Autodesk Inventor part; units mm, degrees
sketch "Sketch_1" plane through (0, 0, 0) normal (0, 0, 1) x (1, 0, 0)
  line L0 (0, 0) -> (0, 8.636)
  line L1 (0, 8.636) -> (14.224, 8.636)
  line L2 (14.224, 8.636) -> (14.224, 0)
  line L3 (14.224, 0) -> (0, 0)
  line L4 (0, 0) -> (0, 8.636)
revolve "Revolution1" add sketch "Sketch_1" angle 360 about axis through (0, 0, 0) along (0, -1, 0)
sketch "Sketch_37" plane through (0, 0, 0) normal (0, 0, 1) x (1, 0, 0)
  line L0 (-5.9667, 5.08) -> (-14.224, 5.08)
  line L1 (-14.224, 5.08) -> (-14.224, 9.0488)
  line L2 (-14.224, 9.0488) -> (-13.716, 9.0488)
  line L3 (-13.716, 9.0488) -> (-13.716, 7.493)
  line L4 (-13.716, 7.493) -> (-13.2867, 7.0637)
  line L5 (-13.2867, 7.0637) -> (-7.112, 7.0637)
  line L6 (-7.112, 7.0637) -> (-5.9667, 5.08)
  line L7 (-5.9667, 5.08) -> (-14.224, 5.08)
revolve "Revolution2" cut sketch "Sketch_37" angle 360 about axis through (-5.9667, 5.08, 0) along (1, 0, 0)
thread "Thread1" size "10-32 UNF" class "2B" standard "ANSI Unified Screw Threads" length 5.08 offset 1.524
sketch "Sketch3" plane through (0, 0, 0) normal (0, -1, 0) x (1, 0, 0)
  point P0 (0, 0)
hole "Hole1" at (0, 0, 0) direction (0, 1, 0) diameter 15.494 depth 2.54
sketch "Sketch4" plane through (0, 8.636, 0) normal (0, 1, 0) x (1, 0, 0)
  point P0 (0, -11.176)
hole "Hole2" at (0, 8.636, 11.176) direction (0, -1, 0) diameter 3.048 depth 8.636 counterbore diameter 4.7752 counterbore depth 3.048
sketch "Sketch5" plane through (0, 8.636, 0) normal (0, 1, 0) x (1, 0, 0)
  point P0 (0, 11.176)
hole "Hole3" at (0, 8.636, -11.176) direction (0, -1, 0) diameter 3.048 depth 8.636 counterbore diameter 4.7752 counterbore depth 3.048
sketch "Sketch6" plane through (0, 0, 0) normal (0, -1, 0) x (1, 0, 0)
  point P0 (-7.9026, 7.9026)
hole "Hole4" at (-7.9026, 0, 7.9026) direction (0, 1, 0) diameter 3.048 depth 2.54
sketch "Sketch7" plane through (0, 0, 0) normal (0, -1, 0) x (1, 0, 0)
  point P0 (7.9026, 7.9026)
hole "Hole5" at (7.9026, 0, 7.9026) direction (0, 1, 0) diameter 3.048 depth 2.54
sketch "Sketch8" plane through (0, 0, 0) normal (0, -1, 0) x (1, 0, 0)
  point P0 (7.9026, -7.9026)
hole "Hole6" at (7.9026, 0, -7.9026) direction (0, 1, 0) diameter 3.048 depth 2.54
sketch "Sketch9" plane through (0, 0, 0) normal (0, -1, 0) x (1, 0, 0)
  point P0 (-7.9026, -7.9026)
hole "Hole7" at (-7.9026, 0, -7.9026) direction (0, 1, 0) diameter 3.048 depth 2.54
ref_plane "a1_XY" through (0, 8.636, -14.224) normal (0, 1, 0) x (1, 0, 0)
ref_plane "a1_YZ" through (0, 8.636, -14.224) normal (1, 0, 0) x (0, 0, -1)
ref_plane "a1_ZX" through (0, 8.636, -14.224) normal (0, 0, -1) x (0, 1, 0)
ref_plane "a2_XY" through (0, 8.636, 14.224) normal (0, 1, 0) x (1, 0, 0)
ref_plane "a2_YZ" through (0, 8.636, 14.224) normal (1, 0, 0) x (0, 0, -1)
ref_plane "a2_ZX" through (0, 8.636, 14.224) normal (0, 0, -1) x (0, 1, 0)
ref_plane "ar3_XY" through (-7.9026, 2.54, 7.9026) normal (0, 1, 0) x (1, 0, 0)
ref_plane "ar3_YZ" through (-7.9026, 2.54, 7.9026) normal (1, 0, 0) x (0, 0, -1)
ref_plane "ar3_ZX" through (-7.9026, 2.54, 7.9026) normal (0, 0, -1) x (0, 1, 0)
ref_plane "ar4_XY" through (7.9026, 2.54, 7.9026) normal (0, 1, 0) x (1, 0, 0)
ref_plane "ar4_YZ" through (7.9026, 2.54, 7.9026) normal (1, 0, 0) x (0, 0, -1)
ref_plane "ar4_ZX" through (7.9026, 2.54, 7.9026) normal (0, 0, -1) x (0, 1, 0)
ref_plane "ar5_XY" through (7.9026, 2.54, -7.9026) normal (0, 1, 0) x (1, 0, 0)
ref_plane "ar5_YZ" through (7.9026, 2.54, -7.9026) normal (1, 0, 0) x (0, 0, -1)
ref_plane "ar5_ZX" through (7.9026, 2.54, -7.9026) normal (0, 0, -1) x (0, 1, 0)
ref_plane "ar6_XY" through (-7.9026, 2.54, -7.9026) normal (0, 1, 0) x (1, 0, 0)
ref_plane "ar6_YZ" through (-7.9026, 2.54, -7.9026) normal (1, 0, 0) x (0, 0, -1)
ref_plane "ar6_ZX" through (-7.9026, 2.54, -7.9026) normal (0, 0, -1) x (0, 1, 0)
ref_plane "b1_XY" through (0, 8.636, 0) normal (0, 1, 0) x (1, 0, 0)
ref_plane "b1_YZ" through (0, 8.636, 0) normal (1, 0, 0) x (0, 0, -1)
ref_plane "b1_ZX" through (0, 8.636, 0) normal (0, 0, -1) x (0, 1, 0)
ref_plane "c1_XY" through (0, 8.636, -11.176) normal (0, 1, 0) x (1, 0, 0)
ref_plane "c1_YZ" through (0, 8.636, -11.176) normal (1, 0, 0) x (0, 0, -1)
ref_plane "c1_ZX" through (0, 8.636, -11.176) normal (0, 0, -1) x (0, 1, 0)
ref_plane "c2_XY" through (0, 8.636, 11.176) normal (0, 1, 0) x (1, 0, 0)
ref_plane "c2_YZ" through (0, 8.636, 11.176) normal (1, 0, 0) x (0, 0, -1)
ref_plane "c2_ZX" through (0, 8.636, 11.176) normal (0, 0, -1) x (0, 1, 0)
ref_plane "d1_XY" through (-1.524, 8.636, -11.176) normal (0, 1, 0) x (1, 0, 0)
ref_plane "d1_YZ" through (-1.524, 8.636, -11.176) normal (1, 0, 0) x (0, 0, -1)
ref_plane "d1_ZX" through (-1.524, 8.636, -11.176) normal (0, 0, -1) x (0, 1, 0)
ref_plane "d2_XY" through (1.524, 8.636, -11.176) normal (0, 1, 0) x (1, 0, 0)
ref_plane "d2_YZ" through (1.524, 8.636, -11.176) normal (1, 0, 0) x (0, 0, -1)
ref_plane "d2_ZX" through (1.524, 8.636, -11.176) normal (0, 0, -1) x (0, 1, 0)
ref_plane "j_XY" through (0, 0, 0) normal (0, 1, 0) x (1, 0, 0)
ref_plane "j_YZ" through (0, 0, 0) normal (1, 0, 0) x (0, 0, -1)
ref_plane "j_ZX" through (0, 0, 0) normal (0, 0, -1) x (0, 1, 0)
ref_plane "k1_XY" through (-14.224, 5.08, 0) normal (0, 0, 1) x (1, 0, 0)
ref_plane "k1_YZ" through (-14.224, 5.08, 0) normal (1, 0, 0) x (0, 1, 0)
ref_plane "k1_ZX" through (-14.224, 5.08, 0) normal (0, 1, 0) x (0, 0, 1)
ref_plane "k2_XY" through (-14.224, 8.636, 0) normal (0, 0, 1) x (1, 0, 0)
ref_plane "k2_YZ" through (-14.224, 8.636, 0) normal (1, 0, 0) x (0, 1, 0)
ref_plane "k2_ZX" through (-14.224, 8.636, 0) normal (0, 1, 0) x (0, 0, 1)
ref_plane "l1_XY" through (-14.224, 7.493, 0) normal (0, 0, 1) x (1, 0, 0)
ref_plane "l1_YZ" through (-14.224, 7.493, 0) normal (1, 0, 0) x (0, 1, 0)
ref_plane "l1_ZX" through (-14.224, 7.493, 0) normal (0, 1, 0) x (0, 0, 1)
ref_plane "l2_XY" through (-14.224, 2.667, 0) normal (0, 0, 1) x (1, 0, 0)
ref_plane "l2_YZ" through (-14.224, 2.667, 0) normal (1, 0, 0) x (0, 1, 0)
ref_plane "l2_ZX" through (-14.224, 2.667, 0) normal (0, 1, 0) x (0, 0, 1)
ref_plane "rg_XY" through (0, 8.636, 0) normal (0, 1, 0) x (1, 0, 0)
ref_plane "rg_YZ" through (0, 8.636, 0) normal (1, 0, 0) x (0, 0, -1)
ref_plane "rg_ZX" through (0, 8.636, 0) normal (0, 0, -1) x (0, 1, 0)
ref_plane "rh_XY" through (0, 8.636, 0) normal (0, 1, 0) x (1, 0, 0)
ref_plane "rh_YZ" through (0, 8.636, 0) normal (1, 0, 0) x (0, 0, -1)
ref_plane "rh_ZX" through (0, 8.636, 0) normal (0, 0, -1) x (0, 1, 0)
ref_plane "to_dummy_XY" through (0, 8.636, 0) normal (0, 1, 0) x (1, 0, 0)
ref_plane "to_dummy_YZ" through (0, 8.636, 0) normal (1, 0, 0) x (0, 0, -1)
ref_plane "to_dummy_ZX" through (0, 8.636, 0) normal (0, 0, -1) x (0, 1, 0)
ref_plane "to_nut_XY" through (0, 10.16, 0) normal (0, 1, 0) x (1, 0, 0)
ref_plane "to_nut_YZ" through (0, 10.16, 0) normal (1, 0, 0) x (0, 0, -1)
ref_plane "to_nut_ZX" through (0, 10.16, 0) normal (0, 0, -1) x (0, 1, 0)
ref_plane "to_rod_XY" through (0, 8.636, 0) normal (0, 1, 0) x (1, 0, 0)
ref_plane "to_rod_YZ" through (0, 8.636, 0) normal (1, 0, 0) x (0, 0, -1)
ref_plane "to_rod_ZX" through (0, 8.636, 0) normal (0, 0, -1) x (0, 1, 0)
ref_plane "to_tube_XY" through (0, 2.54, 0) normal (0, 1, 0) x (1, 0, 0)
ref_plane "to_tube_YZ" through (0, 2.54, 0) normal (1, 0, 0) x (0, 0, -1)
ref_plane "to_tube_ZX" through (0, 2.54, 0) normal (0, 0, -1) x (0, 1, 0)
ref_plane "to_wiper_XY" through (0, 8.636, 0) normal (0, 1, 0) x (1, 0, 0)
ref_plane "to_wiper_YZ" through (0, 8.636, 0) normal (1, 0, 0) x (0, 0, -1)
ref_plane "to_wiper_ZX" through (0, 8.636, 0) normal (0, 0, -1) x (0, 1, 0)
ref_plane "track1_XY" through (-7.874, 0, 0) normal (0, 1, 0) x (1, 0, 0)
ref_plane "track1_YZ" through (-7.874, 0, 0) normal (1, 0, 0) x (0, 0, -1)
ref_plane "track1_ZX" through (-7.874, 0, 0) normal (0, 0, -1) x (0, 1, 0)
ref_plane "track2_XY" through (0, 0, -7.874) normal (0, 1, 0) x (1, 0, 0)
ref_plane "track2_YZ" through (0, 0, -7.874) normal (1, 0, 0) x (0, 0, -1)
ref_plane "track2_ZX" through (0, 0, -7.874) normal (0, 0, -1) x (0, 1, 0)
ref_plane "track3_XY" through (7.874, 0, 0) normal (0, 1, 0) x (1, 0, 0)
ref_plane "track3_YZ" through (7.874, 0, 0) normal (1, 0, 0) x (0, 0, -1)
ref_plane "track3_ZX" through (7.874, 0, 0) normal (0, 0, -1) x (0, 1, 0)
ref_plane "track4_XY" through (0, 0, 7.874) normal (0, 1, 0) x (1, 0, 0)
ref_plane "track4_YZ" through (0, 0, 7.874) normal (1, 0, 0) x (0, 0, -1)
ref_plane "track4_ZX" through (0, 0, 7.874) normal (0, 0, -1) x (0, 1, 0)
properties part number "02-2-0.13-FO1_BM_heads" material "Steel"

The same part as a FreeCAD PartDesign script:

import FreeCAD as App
import Part
import Sketcher
from FreeCAD import Vector
Q = App.Units.Quantity

doc = App.newDocument("Part")
params = doc.addObject("Spreadsheet::Sheet", "Params")
for row, (alias, value) in enumerate([
    ("sketch1_width", "0.56 in"),
    ("sketch1_height", "0.34 in"),
    ("revolution_angle", "360 deg"),
    ("sketch2_width", "0.02 in"),
    ("sketch2_height", "0.156252 in"),
    ("groove_angle", "360 deg"),
    ("sketch3_diameter", "0.61 in"),
    ("hole_diameter", "0.61 in"),
    ("hole_depth", "0.1 in"),
    ("sketch4_diameter", "0.12 in"),
    ("hole2_diameter", "0.12 in"),
    ("hole2_depth", "0.34 in"),
    ("hole2_cbore_diameter", "0.188 in"),
    ("hole2_cbore_depth", "0.12 in"),
    ("sketch5_diameter", "0.12 in"),
    ("hole3_diameter", "0.12 in"),
    ("hole3_depth", "0.34 in"),
    ("hole3_cbore_diameter", "0.188 in"),
    ("hole3_cbore_depth", "0.12 in"),
    ("sketch6_diameter", "0.12 in"),
    ("hole4_diameter", "0.12 in"),
    ("hole4_depth", "0.1 in"),
    ("sketch7_diameter", "0.12 in"),
    ("hole5_diameter", "0.12 in"),
    ("hole5_depth", "0.1 in"),
    ("sketch8_diameter", "0.12 in"),
    ("hole6_diameter", "0.12 in"),
    ("hole6_depth", "0.1 in"),
    ("sketch9_diameter", "0.12 in"),
    ("hole7_diameter", "0.12 in"),
    ("hole7_depth", "0.1 in"),
], start=1):
    params.set(f"A{row}", alias)
    params.set(f"B{row}", "=" + value)
    params.setAlias(f"B{row}", alias)

body = doc.addObject("PartDesign::Body", "Body")

# Sketch on XY plane
sketch1 = body.newObject("Sketcher::SketchObject", "Sketch")
sketch1.AttachmentSupport = (doc.getObject("XY_Plane"), [""])
sketch1.MapMode = "FlatFace"
sketch1.addGeometry([
    Part.LineSegment(Vector(0, 9, 0), Vector(0, 0, 0)),
    Part.LineSegment(Vector(0, 0, 0), Vector(14, 0, 0)),
    Part.LineSegment(Vector(14, 0, 0), Vector(14, 9, 0)),
    Part.LineSegment(Vector(14, 9, 0), Vector(0, 9, 0)),
], False)
sketch1.addConstraint([
    Sketcher.Constraint("Coincident", 0, 2, 1, 1),
    Sketcher.Constraint("Coincident", 1, 2, 2, 1),
    Sketcher.Constraint("Coincident", 2, 2, 3, 1),
    Sketcher.Constraint("Coincident", 3, 2, 0, 1),
    Sketcher.Constraint("Vertical", 0),
    Sketcher.Constraint("Horizontal", 1),
    Sketcher.Constraint("Vertical", 2),
    Sketcher.Constraint("Horizontal", 3),
    Sketcher.Constraint("Coincident", 0, 2, -1, 1),
    Sketcher.Constraint("DistanceX", 1, 1, 1, 2, Q("0.56 in")),
    Sketcher.Constraint("DistanceY", 0, 2, 0, 1, Q("0.34 in")),
])
sketch1.setExpression("Constraints[9]", "Params.sketch1_width")
sketch1.setExpression("Constraints[10]", "Params.sketch1_height")
revolution = body.newObject("PartDesign::Revolution", "Revolution")
revolution.Profile = sketch1
revolution.ReferenceAxis = (sketch1, ["V_Axis"])
revolution.setExpression("Angle", "Params.revolution_angle")

# Sketch on XY plane
sketch2 = body.newObject("Sketcher::SketchObject", "Sketch001")
sketch2.AttachmentSupport = (doc.getObject("XY_Plane"), [""])
sketch2.MapMode = "FlatFace"
sketch2.addGeometry([
    Part.LineSegment(Vector(-14.2, 5.1, 0), Vector(-6, 5.1, 0)),  # 0
    Part.LineSegment(Vector(-6, 5.1, 0), Vector(-7.1, 7.1, 0)),  # 1
    Part.LineSegment(Vector(-7.1, 7.1, 0), Vector(-13.3, 7.1, 0)),  # 2
    Part.LineSegment(Vector(-13.3, 7.1, 0), Vector(-13.7, 7.5, 0)),  # 3
    Part.LineSegment(Vector(-13.7, 7.5, 0), Vector(-13.7, 9, 0)),  # 4
    Part.LineSegment(Vector(-13.7, 9, 0), Vector(-14.2, 9, 0)),  # 5
    Part.LineSegment(Vector(-14.2, 9, 0), Vector(-14.2, 5.1, 0)),  # 6
], False)
sketch2.addGeometry(Part.LineSegment(Vector(-14.2, 5.1, 0), Vector(-6, 5.1, 0)), True)  # axis
sketch2.addConstraint([
    Sketcher.Constraint("Coincident", 0, 2, 1, 1),
    Sketcher.Constraint("Coincident", 1, 2, 2, 1),
    Sketcher.Constraint("Coincident", 2, 2, 3, 1),
    Sketcher.Constraint("Coincident", 3, 2, 4, 1),
    Sketcher.Constraint("Coincident", 4, 2, 5, 1),
    Sketcher.Constraint("Coincident", 5, 2, 6, 1),
    Sketcher.Constraint("Coincident", 6, 2, 0, 1),
    Sketcher.Constraint("Horizontal", 0),
    Sketcher.Constraint("Horizontal", 2),
    Sketcher.Constraint("Vertical", 4),
    Sketcher.Constraint("Horizontal", 5),
    Sketcher.Constraint("Vertical", 6),
    Sketcher.Constraint("Horizontal", 7),
    Sketcher.Constraint("Coincident", 7, 1, 6, 2),
    Sketcher.Constraint("Equal", 0, 7),
    Sketcher.Constraint("Angle", 1, Q("120.0002 deg")),
    Sketcher.Constraint("Angle", 3, Q("135 deg")),
    Sketcher.Constraint("DistanceX", 5, 2, 5, 1, Q("0.02 in")),
    Sketcher.Constraint("DistanceY", -1, 1, 0, 2, Q("0.2 in")),
    Sketcher.Constraint("DistanceY", 6, 2, 6, 1, Q("0.156252 in")),
    Sketcher.Constraint("DistanceX", 1, 2, -1, 1, Q("0.28 in")),
    Sketcher.Constraint("DistanceX", 3, 2, -1, 1, Q("0.54 in")),
    Sketcher.Constraint("DistanceX", 0, 1, 0, 2, Q("0.3251 in")),
    Sketcher.Constraint("DistanceX", 2, 2, 2, 1, Q("0.2431 in")),
])
sketch2.setExpression("Constraints[17]", "Params.sketch2_width")
sketch2.setExpression("Constraints[19]", "Params.sketch2_height")
groove = body.newObject("PartDesign::Groove", "Groove")
groove.Profile = sketch2
groove.ReferenceAxis = (sketch2, ["Axis0"])
groove.setExpression("Angle", "Params.groove_angle")

# Sketch on XZ plane
sketch3 = body.newObject("Sketcher::SketchObject", "Sketch002")
sketch3.AttachmentSupport = (doc.getObject("XZ_Plane"), [""])
sketch3.MapMode = "FlatFace"
sketch3.addGeometry(Part.Circle(Vector(0, 0, 0), Vector(0, 0, 1), 8), False)
sketch3.addConstraint([
    Sketcher.Constraint("Coincident", 0, 3, -1, 1),
    Sketcher.Constraint("Diameter", 0, Q("0.61 in")),
])
sketch3.setExpression("Constraints[1]", "Params.sketch3_diameter")
doc.recompute()
hole = body.newObject("PartDesign::Hole", "Hole")
hole.Profile = sketch3
hole.ThreadType = "None"
hole.setExpression("Diameter", "Params.hole_diameter")
hole.DepthType = "Dimension"
hole.setExpression("Depth", "Params.hole_depth")
hole.DrillPoint = "Flat"

# Sketch on XZ plane
sketch4 = body.newObject("Sketcher::SketchObject", "Sketch003")
sketch4.AttachmentSupport = (doc.getObject("XZ_Plane"), [""])
sketch4.MapMode = "FlatFace"
sketch4.AttachmentOffset = App.Placement(Vector(0, 0, -0.34 * 25.4), App.Rotation())
sketch4.addGeometry(Part.Circle(Vector(0, 11.2, 0), Vector(0, 0, 1), 1.5), False)
sketch4.addConstraint([
    Sketcher.Constraint("PointOnObject", 0, 3, -2),
    Sketcher.Constraint("Diameter", 0, Q("0.12 in")),
    Sketcher.Constraint("DistanceY", -1, 1, 0, 3, Q("0.44 in")),
])
sketch4.setExpression("Constraints[1]", "Params.sketch4_diameter")
doc.recompute()
hole2 = body.newObject("PartDesign::Hole", "Hole001")
hole2.Profile = sketch4
hole2.ThreadType = "None"
hole2.setExpression("Diameter", "Params.hole2_diameter")
hole2.DepthType = "Dimension"
hole2.setExpression("Depth", "Params.hole2_depth")
hole2.DrillPoint = "Flat"
hole2.HoleCutType = "Counterbore"
hole2.setExpression("HoleCutDiameter", "Params.hole2_cbore_diameter")
hole2.setExpression("HoleCutDepth", "Params.hole2_cbore_depth")
hole2.Reversed = True

# Sketch on XZ plane
sketch5 = body.newObject("Sketcher::SketchObject", "Sketch004")
sketch5.AttachmentSupport = (doc.getObject("XZ_Plane"), [""])
sketch5.MapMode = "FlatFace"
sketch5.AttachmentOffset = App.Placement(Vector(0, 0, -0.34 * 25.4), App.Rotation())
sketch5.addGeometry(Part.Circle(Vector(0, -11.2, 0), Vector(0, 0, 1), 1.5), False)
sketch5.addConstraint([
    Sketcher.Constraint("PointOnObject", 0, 3, -2),
    Sketcher.Constraint("Diameter", 0, Q("0.12 in")),
    Sketcher.Constraint("DistanceY", 0, 3, -1, 1, Q("0.44 in")),
])
sketch5.setExpression("Constraints[1]", "Params.sketch5_diameter")
doc.recompute()
hole3 = body.newObject("PartDesign::Hole", "Hole002")
hole3.Profile = sketch5
hole3.ThreadType = "None"
hole3.setExpression("Diameter", "Params.hole3_diameter")
hole3.DepthType = "Dimension"
hole3.setExpression("Depth", "Params.hole3_depth")
hole3.DrillPoint = "Flat"
hole3.HoleCutType = "Counterbore"
hole3.setExpression("HoleCutDiameter", "Params.hole3_cbore_diameter")
hole3.setExpression("HoleCutDepth", "Params.hole3_cbore_depth")
hole3.Reversed = True

# Sketch on XZ plane
sketch6 = body.newObject("Sketcher::SketchObject", "Sketch005")
sketch6.AttachmentSupport = (doc.getObject("XZ_Plane"), [""])
sketch6.MapMode = "FlatFace"
sketch6.addGeometry(Part.Circle(Vector(-7.9, 7.9, 0), Vector(0, 0, 1), 1.5), False)
sketch6.addConstraint([
    Sketcher.Constraint("Diameter", 0, Q("0.12 in")),
    Sketcher.Constraint("DistanceX", 0, 3, -1, 1, Q("7.9026 mm")),
    Sketcher.Constraint("DistanceY", -1, 1, 0, 3, Q("7.9026 mm")),
])
sketch6.setExpression("Constraints[0]", "Params.sketch6_diameter")
doc.recompute()
hole4 = body.newObject("PartDesign::Hole", "Hole003")
hole4.Profile = sketch6
hole4.ThreadType = "None"
hole4.setExpression("Diameter", "Params.hole4_diameter")
hole4.DepthType = "Dimension"
hole4.setExpression("Depth", "Params.hole4_depth")
hole4.DrillPoint = "Flat"

# Sketch on XZ plane
sketch7 = body.newObject("Sketcher::SketchObject", "Sketch006")
sketch7.AttachmentSupport = (doc.getObject("XZ_Plane"), [""])
sketch7.MapMode = "FlatFace"
sketch7.addGeometry(Part.Circle(Vector(7.9, 7.9, 0), Vector(0, 0, 1), 1.5), False)
sketch7.addConstraint([
    Sketcher.Constraint("Diameter", 0, Q("0.12 in")),
    Sketcher.Constraint("DistanceX", -1, 1, 0, 3, Q("7.9026 mm")),
    Sketcher.Constraint("DistanceY", -1, 1, 0, 3, Q("7.9026 mm")),
])
sketch7.setExpression("Constraints[0]", "Params.sketch7_diameter")
doc.recompute()
hole5 = body.newObject("PartDesign::Hole", "Hole004")
hole5.Profile = sketch7
hole5.ThreadType = "None"
hole5.setExpression("Diameter", "Params.hole5_diameter")
hole5.DepthType = "Dimension"
hole5.setExpression("Depth", "Params.hole5_depth")
hole5.DrillPoint = "Flat"

# Sketch on XZ plane
sketch8 = body.newObject("Sketcher::SketchObject", "Sketch007")
sketch8.AttachmentSupport = (doc.getObject("XZ_Plane"), [""])
sketch8.MapMode = "FlatFace"
sketch8.addGeometry(Part.Circle(Vector(7.9, -7.9, 0), Vector(0, 0, 1), 1.5), False)
sketch8.addConstraint([
    Sketcher.Constraint("Diameter", 0, Q("0.12 in")),
    Sketcher.Constraint("DistanceX", -1, 1, 0, 3, Q("7.9026 mm")),
    Sketcher.Constraint("DistanceY", 0, 3, -1, 1, Q("7.9026 mm")),
])
sketch8.setExpression("Constraints[0]", "Params.sketch8_diameter")
doc.recompute()
hole6 = body.newObject("PartDesign::Hole", "Hole005")
hole6.Profile = sketch8
hole6.ThreadType = "None"
hole6.setExpression("Diameter", "Params.hole6_diameter")
hole6.DepthType = "Dimension"
hole6.setExpression("Depth", "Params.hole6_depth")
hole6.DrillPoint = "Flat"

# Sketch on XZ plane
sketch9 = body.newObject("Sketcher::SketchObject", "Sketch008")
sketch9.AttachmentSupport = (doc.getObject("XZ_Plane"), [""])
sketch9.MapMode = "FlatFace"
sketch9.addGeometry(Part.Circle(Vector(-7.9, -7.9, 0), Vector(0, 0, 1), 1.5), False)
sketch9.addConstraint([
    Sketcher.Constraint("Diameter", 0, Q("0.12 in")),
    Sketcher.Constraint("DistanceX", 0, 3, -1, 1, Q("7.9026 mm")),
    Sketcher.Constraint("DistanceY", 0, 3, -1, 1, Q("7.9026 mm")),
])
sketch9.setExpression("Constraints[0]", "Params.sketch9_diameter")
doc.recompute()
hole7 = body.newObject("PartDesign::Hole", "Hole006")
hole7.Profile = sketch9
hole7.ThreadType = "None"
hole7.setExpression("Diameter", "Params.hole7_diameter")
hole7.DepthType = "Dimension"
hole7.setExpression("Depth", "Params.hole7_depth")
hole7.DrillPoint = "Flat"

doc.recompute()
